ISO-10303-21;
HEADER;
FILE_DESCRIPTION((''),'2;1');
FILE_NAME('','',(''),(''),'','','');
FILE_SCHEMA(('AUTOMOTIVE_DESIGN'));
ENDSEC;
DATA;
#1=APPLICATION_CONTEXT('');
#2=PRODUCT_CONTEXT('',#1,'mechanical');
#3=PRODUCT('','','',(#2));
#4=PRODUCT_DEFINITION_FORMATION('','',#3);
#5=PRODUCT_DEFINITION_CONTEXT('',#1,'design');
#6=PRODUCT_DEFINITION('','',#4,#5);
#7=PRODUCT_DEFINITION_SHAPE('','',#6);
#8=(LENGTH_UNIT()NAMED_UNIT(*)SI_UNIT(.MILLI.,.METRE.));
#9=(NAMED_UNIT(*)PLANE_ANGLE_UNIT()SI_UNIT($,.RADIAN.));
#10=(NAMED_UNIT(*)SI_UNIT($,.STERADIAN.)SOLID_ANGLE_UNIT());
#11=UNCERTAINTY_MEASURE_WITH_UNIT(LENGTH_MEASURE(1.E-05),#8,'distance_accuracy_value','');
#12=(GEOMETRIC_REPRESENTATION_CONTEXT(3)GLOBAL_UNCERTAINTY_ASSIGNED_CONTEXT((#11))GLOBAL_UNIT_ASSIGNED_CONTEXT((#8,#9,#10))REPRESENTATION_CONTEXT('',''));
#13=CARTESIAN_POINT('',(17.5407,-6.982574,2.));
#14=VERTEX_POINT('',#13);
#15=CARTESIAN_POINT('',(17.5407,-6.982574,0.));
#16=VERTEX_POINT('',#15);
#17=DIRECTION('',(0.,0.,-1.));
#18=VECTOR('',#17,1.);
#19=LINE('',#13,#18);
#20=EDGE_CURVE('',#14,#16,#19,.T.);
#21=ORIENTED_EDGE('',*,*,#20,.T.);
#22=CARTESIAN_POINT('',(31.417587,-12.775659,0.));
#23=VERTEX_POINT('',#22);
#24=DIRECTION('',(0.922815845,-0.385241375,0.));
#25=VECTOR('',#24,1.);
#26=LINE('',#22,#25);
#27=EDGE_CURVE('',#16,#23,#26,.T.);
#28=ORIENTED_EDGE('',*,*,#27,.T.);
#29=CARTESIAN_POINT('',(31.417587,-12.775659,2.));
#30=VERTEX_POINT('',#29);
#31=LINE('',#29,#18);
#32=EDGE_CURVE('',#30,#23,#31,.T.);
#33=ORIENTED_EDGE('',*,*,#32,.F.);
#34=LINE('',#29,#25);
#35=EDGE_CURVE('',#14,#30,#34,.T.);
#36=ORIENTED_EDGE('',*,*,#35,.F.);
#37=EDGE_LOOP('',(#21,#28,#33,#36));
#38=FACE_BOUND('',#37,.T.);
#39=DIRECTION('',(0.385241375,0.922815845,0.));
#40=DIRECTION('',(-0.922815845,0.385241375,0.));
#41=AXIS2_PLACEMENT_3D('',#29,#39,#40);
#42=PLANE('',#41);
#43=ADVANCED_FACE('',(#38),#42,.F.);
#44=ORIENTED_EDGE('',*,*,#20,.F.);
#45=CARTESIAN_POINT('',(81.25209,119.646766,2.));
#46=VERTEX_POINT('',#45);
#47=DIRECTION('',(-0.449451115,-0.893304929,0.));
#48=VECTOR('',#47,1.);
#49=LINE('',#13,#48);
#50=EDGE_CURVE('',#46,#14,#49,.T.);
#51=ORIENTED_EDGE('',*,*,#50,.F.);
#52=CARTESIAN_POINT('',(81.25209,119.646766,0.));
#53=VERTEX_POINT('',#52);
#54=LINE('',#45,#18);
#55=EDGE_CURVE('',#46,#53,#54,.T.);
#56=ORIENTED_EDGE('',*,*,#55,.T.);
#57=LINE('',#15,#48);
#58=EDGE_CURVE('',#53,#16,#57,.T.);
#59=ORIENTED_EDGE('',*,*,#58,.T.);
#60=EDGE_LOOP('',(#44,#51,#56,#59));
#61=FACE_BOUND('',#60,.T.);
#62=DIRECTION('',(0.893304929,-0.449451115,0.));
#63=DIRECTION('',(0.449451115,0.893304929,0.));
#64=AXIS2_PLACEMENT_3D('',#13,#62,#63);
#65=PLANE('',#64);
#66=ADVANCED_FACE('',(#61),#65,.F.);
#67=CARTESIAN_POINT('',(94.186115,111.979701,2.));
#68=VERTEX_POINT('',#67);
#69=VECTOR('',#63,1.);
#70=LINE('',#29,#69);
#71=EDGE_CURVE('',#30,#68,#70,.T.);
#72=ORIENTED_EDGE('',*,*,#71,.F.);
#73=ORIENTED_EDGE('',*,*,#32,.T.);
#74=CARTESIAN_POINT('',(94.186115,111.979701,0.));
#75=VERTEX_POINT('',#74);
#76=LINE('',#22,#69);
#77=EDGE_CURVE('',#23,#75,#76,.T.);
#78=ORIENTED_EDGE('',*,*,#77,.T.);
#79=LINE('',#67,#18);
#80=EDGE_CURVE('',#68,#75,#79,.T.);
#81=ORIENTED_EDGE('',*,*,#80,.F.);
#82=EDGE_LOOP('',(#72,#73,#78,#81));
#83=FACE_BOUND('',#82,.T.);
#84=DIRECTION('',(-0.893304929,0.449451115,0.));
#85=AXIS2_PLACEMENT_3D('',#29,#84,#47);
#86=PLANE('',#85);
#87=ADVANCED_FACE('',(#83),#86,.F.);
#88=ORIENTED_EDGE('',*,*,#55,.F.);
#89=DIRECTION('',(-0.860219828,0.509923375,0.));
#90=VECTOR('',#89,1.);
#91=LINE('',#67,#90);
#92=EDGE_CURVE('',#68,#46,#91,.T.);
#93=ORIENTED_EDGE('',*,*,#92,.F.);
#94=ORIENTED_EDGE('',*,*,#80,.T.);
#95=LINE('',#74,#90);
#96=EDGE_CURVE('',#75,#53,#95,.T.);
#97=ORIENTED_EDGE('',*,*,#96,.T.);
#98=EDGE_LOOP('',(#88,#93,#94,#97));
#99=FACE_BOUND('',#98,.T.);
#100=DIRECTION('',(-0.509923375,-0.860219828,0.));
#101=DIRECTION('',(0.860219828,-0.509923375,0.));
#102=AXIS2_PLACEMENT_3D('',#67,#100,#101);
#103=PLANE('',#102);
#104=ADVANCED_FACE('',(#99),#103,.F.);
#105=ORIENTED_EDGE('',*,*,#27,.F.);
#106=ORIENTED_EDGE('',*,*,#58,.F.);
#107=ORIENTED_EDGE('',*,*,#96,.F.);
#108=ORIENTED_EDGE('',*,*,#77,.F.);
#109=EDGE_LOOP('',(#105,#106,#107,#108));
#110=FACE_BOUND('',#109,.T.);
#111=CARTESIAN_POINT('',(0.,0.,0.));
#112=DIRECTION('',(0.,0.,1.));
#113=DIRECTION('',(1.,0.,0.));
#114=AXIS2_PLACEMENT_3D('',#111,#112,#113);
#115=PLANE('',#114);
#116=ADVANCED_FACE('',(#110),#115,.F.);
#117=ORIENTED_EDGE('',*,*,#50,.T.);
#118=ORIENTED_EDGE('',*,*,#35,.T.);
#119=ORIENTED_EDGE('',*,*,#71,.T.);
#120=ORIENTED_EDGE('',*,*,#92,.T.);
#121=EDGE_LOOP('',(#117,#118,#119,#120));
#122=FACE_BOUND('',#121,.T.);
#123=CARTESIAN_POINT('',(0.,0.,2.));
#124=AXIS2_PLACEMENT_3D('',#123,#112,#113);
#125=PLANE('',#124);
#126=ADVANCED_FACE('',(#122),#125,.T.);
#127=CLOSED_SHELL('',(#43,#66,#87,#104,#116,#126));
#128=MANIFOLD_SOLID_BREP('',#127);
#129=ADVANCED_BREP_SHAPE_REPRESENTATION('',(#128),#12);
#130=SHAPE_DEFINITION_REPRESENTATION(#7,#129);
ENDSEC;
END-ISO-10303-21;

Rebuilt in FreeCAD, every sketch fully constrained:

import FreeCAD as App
import Part
import Sketcher
from FreeCAD import Vector


def add_polygon(sketch, points):
    """Adds a closed chain of lines whose ends are joined by coincident constraints."""
    first, n = sketch.GeometryCount, len(points)
    for a, b in zip(points, points[1:] + points[:1]):
        sketch.addGeometry(Part.LineSegment(App.Vector(*a, 0), App.Vector(*b, 0)), False)
    for i in range(n):
        sketch.addConstraint(Sketcher.Constraint("Coincident", first + i, 2, first + (i + 1) % n, 1))

doc = App.newDocument("Part")
body = doc.addObject("PartDesign::Body", "Body")

# Sketch on XY plane
sketch1 = doc.addObject("Sketcher::SketchObject", "Sketch")
body.addObject(sketch1)
sketch1.AttachmentSupport = (doc.XY_Plane, [""])
sketch1.MapMode = "FlatFace"
add_polygon(sketch1, [(17.5407, -6.982574), (31.417587, -12.775659), (94.186115, 111.979701), (81.25209, 119.646766)])  # lines 0-3
sketch1.addConstraint([
    Sketcher.Constraint("Parallel", 1, 3),
    Sketcher.Constraint("DistanceY", -1, 1, 1, 2, 111.979701),
    Sketcher.Constraint("DistanceX", -1, 1, 3, 2, 17.5407),
    Sketcher.Constraint("Distance", 2, 15.035721),
    Sketcher.Constraint("Distance", 3, 141.753768),
    Sketcher.Constraint("DistanceY", 0, 2, -1, 1, 12.775659),
    Sketcher.Constraint("DistanceX", -1, 1, 2, 2, 81.25209),
    Sketcher.Constraint("Distance", 0, 15.037547),
])
pad1 = doc.addObject("PartDesign::Pad", "Pad")
body.addObject(pad1)
pad1.Profile = sketch1
pad1.Length = 2

doc.recompute()
